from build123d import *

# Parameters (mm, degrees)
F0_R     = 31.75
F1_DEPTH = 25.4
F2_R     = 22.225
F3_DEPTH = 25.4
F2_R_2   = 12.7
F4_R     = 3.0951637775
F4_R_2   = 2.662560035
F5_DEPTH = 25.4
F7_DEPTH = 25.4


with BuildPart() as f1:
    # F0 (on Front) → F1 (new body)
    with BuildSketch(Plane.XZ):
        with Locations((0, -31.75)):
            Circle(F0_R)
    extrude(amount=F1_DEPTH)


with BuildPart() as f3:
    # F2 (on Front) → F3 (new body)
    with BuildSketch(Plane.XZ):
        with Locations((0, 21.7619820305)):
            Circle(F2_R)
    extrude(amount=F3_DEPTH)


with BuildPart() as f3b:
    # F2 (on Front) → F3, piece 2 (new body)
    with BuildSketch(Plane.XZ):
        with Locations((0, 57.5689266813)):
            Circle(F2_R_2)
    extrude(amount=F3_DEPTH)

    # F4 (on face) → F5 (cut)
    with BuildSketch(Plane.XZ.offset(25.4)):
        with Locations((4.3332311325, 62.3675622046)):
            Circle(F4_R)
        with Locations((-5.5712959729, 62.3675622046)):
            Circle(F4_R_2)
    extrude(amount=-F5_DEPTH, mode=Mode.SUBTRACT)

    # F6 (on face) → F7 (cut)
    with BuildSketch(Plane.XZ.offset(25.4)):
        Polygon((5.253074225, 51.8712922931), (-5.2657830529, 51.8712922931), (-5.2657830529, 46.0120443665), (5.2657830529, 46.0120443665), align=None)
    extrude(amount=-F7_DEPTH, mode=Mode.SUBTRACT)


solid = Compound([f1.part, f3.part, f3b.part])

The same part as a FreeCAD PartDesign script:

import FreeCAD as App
import Part
import Sketcher

V = App.Vector
Q = App.Units.Quantity

doc = App.newDocument("Part")
body = doc.addObject("PartDesign::Body", "Body")

# Sketch on XZ plane
sketch1 = body.newObject("Sketcher::SketchObject", "Sketch")
sketch1.AttachmentSupport = (doc.getObject("XZ_Plane"), [""])
sketch1.MapMode = "FlatFace"
sketch1.addGeometry(Part.Circle(V(0, -31.75, 0), V(0, 0, 1), 31.75), False)
sketch1.addConstraint([
    Sketcher.Constraint("PointOnObject", 0, 3, -2),
    Sketcher.Constraint("Diameter", 0, Q("2.5 in")),
    Sketcher.Constraint("DistanceY", 0, 3, -1, 1, Q("1.25 in")),
])
pad1 = body.newObject("PartDesign::Pad", "Pad")
pad1.Profile = sketch1
pad1.Length = Q("1 in")
body2 = doc.addObject("PartDesign::Body", "Body001")

# Sketch on XZ plane
sketch2 = body2.newObject("Sketcher::SketchObject", "Sketch001")
sketch2.AttachmentSupport = (doc.getObject("XZ_Plane001"), [""])
sketch2.MapMode = "FlatFace"
sketch2.addGeometry(Part.Circle(V(0, 21.761982, 0), V(0, 0, 1), 22.225), False)
sketch2.addConstraint([
    Sketcher.Constraint("PointOnObject", 0, 3, -2),
    Sketcher.Constraint("Diameter", 0, Q("1.75 in")),
    Sketcher.Constraint("DistanceY", -1, 1, 0, 3, 21.761982),
])
pad2 = body2.newObject("PartDesign::Pad", "Pad001")
pad2.Profile = sketch2
pad2.Length = Q("1 in")
body3 = doc.addObject("PartDesign::Body", "Body002")
body3.AllowCompound = True

# Sketch on XZ plane
sketch3 = body3.newObject("Sketcher::SketchObject", "Sketch002")
sketch3.AttachmentSupport = (doc.getObject("XZ_Plane002"), [""])
sketch3.MapMode = "FlatFace"
sketch3.addGeometry(Part.Circle(V(0, 57.568927, 0), V(0, 0, 1), 12.7), False)
sketch3.addConstraint([
    Sketcher.Constraint("PointOnObject", 0, 3, -2),
    Sketcher.Constraint("Diameter", 0, Q("1 in")),
    Sketcher.Constraint("DistanceY", -1, 1, 0, 3, 57.568927),
])
pad3 = body3.newObject("PartDesign::Pad", "Pad002")
pad3.Profile = sketch3
pad3.Length = Q("1 in")

# Sketch on XZ plane
sketch4 = body3.newObject("Sketcher::SketchObject", "Sketch003")
sketch4.AttachmentSupport = (doc.getObject("XZ_Plane002"), [""])
sketch4.MapMode = "FlatFace"
sketch4.AttachmentOffset = App.Placement(V(0, 0, 1 * 25.4), App.Rotation())
sketch4.addGeometry([
    Part.Circle(V(4.333231, 62.367562, 0), V(0, 0, 1), 3.095164),
    Part.Circle(V(-5.571296, 62.367562, 0), V(0, 0, 1), 2.66256),
], False)
sketch4.addConstraint([
    Sketcher.Constraint("Horizontal", 0, 3, 1, 3),
    Sketcher.Constraint("Diameter", 1, 5.32512),
    Sketcher.Constraint("Diameter", 0, 6.190328),
    Sketcher.Constraint("DistanceX", -1, 1, 0, 3, 4.333231),
    Sketcher.Constraint("DistanceY", -1, 1, 0, 3, 62.367562),
    Sketcher.Constraint("DistanceX", 1, 3, -1, 1, 5.571296),
])
pocket1 = body3.newObject("PartDesign::Pocket", "Pocket")
pocket1.Profile = sketch4
pocket1.Length = Q("1 in")

# Sketch on XZ plane
sketch5 = body3.newObject("Sketcher::SketchObject", "Sketch004")
sketch5.AttachmentSupport = (doc.getObject("XZ_Plane002"), [""])
sketch5.MapMode = "FlatFace"
sketch5.AttachmentOffset = App.Placement(V(0, 0, 1 * 25.4), App.Rotation())
sketch5.addGeometry([
    Part.LineSegment(V(5.253074, 51.871292, 0), V(-5.265783, 51.871292, 0)),
    Part.LineSegment(V(-5.265783, 51.871292, 0), V(-5.265783, 46.012044, 0)),
    Part.LineSegment(V(-5.265783, 46.012044, 0), V(5.265783, 46.012044, 0)),
    Part.LineSegment(V(5.265783, 46.012044, 0), V(5.253074, 51.871292, 0)),
], False)
sketch5.addConstraint([
    Sketcher.Constraint("Coincident", 0, 2, 1, 1),
    Sketcher.Constraint("Coincident", 1, 2, 2, 1),
    Sketcher.Constraint("Coincident", 2, 2, 3, 1),
    Sketcher.Constraint("Coincident", 3, 2, 0, 1),
    Sketcher.Constraint("Horizontal", 0),
    Sketcher.Constraint("Vertical", 1),
    Sketcher.Constraint("Horizontal", 2),
    Sketcher.Constraint("Distance", 3, 5.859262),
    Sketcher.Constraint("DistanceX", 0, 2, 0, 1, 10.518857),
    Sketcher.Constraint("DistanceX", 2, 1, 2, 2, 10.531566),
    Sketcher.Constraint("DistanceX", 0, 2, -1, 1, 5.265783),
    Sketcher.Constraint("DistanceY", -1, 1, 0, 2, 51.871292),
])
pocket2 = body3.newObject("PartDesign::Pocket", "Pocket001")
pocket2.Profile = sketch5
pocket2.Length = Q("1 in")

doc.recompute()
